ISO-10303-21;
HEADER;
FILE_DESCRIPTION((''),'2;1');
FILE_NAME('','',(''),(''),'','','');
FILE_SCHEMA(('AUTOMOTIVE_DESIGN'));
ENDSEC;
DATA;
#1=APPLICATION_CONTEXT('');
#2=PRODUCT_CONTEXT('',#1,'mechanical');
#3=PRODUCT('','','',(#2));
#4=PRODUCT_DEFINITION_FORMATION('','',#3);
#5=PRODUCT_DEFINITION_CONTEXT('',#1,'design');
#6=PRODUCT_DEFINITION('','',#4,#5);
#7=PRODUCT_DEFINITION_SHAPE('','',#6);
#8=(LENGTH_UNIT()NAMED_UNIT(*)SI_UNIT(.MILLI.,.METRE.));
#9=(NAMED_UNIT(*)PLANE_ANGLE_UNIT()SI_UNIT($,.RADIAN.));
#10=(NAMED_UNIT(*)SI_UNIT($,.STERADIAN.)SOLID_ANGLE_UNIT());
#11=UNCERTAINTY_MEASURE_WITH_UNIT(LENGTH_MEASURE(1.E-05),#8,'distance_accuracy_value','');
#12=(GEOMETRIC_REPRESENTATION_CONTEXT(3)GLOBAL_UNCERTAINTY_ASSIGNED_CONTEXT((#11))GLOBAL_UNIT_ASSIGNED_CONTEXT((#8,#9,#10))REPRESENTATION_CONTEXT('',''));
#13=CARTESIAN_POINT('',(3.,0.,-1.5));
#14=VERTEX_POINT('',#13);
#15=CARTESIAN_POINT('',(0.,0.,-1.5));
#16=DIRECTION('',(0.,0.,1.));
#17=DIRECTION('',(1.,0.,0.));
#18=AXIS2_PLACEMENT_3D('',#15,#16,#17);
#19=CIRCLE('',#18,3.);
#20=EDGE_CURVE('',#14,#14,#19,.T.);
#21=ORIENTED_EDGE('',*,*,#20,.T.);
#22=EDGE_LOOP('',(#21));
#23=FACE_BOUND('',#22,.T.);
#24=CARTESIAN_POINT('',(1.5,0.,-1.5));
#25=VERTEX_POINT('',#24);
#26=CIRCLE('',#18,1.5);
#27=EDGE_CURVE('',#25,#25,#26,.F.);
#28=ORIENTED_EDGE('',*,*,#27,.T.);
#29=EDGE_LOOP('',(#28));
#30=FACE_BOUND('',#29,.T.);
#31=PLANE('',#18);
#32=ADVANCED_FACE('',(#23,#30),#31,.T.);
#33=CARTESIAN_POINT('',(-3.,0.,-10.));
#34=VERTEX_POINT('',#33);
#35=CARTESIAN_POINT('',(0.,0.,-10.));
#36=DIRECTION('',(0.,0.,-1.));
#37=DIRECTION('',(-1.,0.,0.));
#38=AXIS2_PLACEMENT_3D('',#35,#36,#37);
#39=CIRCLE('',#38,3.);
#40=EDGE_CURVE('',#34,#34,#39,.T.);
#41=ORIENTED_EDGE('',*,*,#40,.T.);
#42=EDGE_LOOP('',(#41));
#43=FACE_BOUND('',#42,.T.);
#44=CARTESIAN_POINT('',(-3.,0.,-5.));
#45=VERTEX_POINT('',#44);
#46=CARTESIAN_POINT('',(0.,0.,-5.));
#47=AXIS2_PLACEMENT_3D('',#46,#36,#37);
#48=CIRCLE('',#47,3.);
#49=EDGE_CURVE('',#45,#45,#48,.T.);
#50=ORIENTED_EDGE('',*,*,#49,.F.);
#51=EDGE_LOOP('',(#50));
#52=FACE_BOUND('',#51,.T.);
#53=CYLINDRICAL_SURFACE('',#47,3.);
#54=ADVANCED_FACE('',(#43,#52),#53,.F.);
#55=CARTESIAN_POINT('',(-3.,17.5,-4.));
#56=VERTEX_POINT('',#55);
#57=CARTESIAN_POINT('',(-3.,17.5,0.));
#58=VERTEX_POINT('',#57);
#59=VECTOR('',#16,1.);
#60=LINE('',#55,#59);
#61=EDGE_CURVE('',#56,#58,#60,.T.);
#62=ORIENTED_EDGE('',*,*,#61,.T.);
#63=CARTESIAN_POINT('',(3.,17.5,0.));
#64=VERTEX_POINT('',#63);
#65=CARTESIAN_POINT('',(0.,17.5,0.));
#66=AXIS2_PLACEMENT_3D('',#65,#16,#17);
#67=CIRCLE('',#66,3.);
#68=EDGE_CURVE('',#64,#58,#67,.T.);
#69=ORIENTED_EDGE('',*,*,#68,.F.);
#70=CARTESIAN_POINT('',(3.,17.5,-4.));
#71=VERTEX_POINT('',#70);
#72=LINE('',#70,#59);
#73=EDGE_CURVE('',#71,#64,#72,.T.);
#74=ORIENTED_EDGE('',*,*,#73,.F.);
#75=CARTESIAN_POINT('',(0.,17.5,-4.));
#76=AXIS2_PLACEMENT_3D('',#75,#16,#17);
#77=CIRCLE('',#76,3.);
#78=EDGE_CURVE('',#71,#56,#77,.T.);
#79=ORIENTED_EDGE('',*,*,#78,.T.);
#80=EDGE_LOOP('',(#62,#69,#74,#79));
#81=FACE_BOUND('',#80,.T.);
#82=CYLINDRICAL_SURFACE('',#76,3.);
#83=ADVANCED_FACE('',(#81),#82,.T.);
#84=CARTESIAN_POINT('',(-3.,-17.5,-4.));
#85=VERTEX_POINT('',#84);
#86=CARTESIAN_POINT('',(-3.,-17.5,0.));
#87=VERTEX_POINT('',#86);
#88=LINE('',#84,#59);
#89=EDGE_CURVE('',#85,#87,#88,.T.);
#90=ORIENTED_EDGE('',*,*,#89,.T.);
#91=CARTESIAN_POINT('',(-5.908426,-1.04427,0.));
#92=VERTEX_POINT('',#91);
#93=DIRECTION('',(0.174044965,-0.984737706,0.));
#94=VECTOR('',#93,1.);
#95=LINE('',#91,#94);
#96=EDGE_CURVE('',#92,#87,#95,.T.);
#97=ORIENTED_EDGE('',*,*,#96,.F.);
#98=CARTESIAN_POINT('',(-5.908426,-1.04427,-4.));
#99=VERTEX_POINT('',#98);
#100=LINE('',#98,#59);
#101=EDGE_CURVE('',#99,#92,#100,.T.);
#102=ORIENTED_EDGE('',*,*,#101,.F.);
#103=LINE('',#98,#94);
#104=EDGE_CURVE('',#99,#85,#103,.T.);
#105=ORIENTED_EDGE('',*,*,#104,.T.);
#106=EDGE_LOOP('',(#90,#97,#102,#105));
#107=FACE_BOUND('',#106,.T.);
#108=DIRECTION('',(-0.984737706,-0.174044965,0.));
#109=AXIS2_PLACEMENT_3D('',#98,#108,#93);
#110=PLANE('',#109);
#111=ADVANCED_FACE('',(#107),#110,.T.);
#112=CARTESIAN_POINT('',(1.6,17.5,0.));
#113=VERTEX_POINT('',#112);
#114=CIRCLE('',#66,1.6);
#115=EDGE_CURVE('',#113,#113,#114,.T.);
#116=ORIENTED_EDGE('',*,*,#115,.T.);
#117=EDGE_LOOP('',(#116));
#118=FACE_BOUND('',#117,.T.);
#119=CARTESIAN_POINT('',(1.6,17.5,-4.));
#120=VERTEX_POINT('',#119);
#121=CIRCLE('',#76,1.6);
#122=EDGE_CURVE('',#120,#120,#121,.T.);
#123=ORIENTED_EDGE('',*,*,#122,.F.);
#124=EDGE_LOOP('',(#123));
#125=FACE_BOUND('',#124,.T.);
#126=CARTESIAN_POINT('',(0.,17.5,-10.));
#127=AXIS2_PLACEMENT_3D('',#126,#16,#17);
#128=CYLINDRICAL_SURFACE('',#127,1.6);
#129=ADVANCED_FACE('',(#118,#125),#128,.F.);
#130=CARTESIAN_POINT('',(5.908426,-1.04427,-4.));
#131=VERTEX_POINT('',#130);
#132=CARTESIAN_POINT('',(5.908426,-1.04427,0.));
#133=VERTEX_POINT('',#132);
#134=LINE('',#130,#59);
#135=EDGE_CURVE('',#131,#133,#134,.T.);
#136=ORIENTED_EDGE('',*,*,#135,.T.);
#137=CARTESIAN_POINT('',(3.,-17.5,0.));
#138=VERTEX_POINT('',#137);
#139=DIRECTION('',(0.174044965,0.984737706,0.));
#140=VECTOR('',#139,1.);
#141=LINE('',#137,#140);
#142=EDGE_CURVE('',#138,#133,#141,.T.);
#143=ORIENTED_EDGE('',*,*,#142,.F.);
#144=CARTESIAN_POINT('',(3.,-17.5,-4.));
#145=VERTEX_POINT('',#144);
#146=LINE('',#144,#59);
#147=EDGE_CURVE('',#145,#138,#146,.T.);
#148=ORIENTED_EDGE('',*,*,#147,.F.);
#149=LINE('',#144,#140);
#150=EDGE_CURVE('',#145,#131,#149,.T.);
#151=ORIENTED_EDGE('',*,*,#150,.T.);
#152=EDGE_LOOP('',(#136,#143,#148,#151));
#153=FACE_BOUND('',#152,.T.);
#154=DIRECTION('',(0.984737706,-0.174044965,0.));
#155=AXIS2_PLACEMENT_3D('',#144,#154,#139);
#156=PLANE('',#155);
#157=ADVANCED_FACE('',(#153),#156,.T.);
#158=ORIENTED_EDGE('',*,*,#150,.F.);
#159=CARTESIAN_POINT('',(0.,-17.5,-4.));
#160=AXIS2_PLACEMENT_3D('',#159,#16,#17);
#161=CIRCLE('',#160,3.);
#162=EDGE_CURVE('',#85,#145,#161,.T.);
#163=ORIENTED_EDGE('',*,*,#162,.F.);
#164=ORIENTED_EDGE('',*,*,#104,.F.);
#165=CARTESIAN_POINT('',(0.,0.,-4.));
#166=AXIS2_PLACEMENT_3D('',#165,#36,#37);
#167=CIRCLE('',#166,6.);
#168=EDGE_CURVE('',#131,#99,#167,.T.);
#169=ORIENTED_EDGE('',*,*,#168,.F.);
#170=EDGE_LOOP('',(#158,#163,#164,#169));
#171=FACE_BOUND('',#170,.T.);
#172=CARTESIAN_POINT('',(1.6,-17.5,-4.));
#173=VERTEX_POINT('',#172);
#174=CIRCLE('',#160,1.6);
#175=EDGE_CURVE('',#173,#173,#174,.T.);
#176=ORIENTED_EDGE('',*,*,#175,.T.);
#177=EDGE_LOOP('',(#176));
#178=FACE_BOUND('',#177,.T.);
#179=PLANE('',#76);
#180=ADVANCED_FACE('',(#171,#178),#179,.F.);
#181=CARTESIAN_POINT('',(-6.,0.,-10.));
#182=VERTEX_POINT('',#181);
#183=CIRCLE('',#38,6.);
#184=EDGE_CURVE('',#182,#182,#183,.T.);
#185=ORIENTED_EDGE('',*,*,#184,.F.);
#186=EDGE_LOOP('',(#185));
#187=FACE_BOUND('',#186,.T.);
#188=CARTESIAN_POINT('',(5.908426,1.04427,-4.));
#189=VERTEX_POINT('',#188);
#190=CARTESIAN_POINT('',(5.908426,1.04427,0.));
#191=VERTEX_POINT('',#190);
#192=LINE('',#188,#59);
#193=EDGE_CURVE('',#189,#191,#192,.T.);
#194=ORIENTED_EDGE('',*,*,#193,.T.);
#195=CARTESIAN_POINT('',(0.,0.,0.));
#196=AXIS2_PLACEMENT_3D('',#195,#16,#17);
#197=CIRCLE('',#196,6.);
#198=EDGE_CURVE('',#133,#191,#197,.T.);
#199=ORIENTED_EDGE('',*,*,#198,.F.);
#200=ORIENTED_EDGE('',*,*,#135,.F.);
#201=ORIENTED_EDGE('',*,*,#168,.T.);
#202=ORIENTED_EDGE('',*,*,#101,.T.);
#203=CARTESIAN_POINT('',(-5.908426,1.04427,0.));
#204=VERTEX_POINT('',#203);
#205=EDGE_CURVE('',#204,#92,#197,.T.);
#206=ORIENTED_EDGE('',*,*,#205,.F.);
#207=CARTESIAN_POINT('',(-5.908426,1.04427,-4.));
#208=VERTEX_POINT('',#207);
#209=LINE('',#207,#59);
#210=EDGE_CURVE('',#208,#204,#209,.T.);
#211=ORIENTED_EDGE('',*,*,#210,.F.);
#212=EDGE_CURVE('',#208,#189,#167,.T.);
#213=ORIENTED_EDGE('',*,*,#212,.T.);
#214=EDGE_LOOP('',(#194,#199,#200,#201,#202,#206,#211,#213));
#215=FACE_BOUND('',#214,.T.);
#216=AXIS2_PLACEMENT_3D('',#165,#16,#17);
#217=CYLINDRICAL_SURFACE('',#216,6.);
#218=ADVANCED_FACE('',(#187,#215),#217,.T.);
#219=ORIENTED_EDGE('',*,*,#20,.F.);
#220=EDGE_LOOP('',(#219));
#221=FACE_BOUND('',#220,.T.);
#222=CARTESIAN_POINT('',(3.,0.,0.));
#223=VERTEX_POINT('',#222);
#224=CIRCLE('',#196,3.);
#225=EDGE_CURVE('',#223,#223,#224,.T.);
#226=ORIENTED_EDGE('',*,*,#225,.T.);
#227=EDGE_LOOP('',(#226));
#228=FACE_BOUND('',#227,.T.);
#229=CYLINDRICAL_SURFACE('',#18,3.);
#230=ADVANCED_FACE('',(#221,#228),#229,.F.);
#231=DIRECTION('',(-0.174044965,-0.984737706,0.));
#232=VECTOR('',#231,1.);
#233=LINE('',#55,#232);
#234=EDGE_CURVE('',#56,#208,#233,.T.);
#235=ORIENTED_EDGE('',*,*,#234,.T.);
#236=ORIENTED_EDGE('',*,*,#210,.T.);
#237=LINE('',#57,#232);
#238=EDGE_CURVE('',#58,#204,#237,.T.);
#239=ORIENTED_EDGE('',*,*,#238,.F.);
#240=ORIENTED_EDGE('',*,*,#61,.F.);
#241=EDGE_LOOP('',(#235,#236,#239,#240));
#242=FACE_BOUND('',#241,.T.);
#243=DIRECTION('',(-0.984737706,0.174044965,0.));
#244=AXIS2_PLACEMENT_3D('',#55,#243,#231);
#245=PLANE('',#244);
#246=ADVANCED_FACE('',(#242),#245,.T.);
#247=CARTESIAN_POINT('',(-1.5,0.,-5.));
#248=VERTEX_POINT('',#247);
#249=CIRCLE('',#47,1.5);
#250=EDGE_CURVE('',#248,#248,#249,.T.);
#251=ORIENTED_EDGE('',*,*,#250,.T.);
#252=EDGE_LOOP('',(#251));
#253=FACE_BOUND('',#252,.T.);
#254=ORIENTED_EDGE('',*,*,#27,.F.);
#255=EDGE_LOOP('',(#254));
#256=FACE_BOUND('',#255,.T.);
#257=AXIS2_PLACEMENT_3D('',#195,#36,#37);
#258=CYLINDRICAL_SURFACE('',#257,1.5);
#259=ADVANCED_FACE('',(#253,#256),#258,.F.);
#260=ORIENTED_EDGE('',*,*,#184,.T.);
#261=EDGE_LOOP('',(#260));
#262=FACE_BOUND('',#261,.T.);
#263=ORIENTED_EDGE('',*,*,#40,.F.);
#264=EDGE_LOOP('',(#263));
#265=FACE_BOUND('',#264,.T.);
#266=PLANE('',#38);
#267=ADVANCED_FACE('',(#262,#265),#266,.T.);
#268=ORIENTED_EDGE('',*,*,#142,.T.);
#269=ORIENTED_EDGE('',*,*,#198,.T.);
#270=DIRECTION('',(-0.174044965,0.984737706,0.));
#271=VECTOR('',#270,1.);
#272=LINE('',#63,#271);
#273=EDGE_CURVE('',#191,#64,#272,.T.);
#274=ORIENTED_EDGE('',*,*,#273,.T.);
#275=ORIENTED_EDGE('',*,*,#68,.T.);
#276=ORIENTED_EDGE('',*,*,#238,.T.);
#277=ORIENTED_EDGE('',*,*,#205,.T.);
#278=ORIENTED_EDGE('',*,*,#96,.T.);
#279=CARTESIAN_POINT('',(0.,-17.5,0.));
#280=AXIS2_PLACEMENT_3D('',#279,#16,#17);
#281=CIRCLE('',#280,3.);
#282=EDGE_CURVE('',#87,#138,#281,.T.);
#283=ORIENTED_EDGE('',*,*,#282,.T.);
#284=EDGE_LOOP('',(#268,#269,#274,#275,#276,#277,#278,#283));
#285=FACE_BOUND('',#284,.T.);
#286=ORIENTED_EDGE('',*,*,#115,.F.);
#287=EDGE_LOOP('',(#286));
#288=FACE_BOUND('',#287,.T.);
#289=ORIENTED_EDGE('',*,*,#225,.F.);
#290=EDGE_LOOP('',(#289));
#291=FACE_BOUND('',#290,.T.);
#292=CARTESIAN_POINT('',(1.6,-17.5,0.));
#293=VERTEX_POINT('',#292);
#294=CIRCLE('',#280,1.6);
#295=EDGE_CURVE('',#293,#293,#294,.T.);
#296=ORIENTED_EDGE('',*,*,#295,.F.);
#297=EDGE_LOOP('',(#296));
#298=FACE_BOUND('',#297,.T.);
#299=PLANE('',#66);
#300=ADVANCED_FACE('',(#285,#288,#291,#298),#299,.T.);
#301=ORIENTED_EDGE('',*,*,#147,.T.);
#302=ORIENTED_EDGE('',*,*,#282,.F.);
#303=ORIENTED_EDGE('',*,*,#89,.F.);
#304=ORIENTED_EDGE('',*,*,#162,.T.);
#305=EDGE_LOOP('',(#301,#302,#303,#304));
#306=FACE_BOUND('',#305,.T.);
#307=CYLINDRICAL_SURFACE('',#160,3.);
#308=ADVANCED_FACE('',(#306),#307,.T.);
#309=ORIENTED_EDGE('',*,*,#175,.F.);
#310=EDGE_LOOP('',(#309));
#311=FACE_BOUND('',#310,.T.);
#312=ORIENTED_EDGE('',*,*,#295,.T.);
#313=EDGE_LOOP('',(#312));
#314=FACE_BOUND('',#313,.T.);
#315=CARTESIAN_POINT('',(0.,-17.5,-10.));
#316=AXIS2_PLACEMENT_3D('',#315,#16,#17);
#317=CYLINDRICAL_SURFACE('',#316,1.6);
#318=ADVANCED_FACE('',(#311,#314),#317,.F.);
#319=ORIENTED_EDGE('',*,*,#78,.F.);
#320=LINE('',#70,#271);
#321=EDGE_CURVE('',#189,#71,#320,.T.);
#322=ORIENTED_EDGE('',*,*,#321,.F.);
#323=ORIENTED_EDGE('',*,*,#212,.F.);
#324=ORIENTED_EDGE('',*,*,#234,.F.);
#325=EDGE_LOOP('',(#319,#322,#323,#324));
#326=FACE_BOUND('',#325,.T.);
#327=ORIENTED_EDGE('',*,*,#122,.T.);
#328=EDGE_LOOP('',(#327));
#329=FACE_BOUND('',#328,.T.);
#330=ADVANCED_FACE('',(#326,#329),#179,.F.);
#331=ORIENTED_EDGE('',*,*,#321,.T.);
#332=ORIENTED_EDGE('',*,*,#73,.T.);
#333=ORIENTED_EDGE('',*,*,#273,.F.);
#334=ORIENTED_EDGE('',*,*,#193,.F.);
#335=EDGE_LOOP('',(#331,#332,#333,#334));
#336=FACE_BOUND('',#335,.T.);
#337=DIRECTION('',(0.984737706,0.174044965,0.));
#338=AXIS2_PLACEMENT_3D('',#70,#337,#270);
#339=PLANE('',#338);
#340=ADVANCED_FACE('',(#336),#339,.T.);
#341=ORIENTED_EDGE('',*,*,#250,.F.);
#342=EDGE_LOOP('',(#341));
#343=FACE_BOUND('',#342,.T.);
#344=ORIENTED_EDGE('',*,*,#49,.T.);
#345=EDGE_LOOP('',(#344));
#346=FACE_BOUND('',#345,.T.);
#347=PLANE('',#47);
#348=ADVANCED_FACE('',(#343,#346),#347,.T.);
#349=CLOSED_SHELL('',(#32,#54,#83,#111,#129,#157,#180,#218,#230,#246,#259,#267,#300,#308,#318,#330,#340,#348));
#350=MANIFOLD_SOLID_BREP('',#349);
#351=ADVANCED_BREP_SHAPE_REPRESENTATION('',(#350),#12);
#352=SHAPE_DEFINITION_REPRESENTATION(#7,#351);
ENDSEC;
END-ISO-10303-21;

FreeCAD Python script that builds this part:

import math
import FreeCAD as App
import Part
import Sketcher
from FreeCAD import Vector

doc = App.newDocument("Part")
body = doc.addObject("PartDesign::Body", "Body")

# Sketch on XY plane
sketch1 = doc.addObject("Sketcher::SketchObject", "Sketch")
body.addObject(sketch1)
sketch1.AttachmentSupport = (doc.XY_Plane, [""])
sketch1.MapMode = "FlatFace"
sketch1.addGeometry(Part.LineSegment(Vector(5.908426, 1.04427, 0), Vector(3, 17.5, 0)), False)
sketch1.addGeometry(Part.ArcOfCircle(Part.Circle(Vector(0, 17.5, 0), Vector(0, 0, 1), 3), math.radians(0), math.radians(180)), False)
sketch1.addGeometry(Part.LineSegment(Vector(-3, 17.5, 0), Vector(-5.908426, 1.04427, 0)), False)
sketch1.addGeometry(Part.ArcOfCircle(Part.Circle(Vector(0, 0, 0), Vector(0, 0, 1), 6), math.radians(169.976914), math.radians(190.023086)), False)
sketch1.addGeometry(Part.LineSegment(Vector(-5.908426, -1.04427, 0), Vector(-3, -17.5, 0)), False)
sketch1.addGeometry(Part.ArcOfCircle(Part.Circle(Vector(0, -17.5, 0), Vector(0, 0, 1), 3), math.radians(180), math.radians(360)), False)
sketch1.addGeometry(Part.LineSegment(Vector(3, -17.5, 0), Vector(5.908426, -1.04427, 0)), False)
sketch1.addGeometry(Part.ArcOfCircle(Part.Circle(Vector(0, 0, 0), Vector(0, 0, 1), 6), math.radians(-10.023086), math.radians(10.023086)), False)
sketch1.addConstraint(Sketcher.Constraint("Coincident", 0, 2, 1, 1))
sketch1.addConstraint(Sketcher.Constraint("Coincident", 1, 2, 2, 1))
sketch1.addConstraint(Sketcher.Constraint("Tangent", 2, 2, 3, 1))
sketch1.addConstraint(Sketcher.Constraint("Tangent", 3, 2, 4, 1))
sketch1.addConstraint(Sketcher.Constraint("Coincident", 4, 2, 5, 1))
sketch1.addConstraint(Sketcher.Constraint("Coincident", 5, 2, 6, 1))
sketch1.addConstraint(Sketcher.Constraint("Tangent", 6, 2, 7, 1))
sketch1.addConstraint(Sketcher.Constraint("Tangent", 7, 2, 0, 1))
sketch1.addConstraint(Sketcher.Constraint("Coincident", 3, 3, -1, 1))
sketch1.addConstraint(Sketcher.Constraint("Coincident", 7, 3, -1, 1))
sketch1.addConstraint(Sketcher.Constraint("Equal", 1, 5))
sketch1.addConstraint(Sketcher.Constraint("Equal", 3, 7))
sketch1.addConstraint(Sketcher.Constraint("Symmetric", 1, 3, 5, 3, -1, 1))
sketch1.addConstraint(Sketcher.Constraint("Symmetric", 0, 2, 1, 2, -2))
sketch1.addConstraint(Sketcher.Constraint("Parallel", 0, 4))
sketch1.addConstraint(Sketcher.Constraint("Parallel", 2, 6))
sketch1.addConstraint(Sketcher.Constraint("Horizontal", 1, 3, 0, 2))
sketch1.addConstraint(Sketcher.Constraint("Radius", 1, 3.0))
sketch1.addConstraint(Sketcher.Constraint("Radius", 3, 6.0))
sketch1.addConstraint(Sketcher.Constraint("DistanceY", 5, 3, 1, 3, 35.0))
pad1 = doc.addObject("PartDesign::Pad", "Pad")
body.addObject(pad1)
pad1.Profile = sketch1
pad1.Length = 4
pad1.Reversed = True

# Sketch on XY plane
sketch2 = doc.addObject("Sketcher::SketchObject", "Sketch001")
body.addObject(sketch2)
sketch2.AttachmentSupport = (doc.XY_Plane, [""])
sketch2.MapMode = "FlatFace"
sketch2.AttachmentOffset = App.Placement(Vector(0, 0, -4), App.Rotation())
sketch2.addGeometry(Part.Circle(Vector(0, 0, 0), Vector(0, 0, 1), 6), False)
sketch2.addConstraint(Sketcher.Constraint("Coincident", 0, 3, -1, 1))
sketch2.addConstraint(Sketcher.Constraint("Diameter", 0, 12.0))
pad2 = doc.addObject("PartDesign::Pad", "Pad001")
body.addObject(pad2)
pad2.Profile = sketch2
pad2.Length = 6
pad2.Reversed = True

# Sketch on XY plane
sketch3 = doc.addObject("Sketcher::SketchObject", "Sketch002")
body.addObject(sketch3)
sketch3.AttachmentSupport = (doc.XY_Plane, [""])
sketch3.MapMode = "FlatFace"
sketch3.AttachmentOffset = App.Placement(Vector(0, 0, -10), App.Rotation())
sketch3.addGeometry(Part.Circle(Vector(0, 0, 0), Vector(0, 0, 1), 3), False)
sketch3.addConstraint(Sketcher.Constraint("Coincident", 0, 3, -1, 1))
sketch3.addConstraint(Sketcher.Constraint("Diameter", 0, 6.0))
pocket1 = doc.addObject("PartDesign::Pocket", "Pocket")
body.addObject(pocket1)
pocket1.Profile = sketch3
pocket1.Length = 5
pocket1.Reversed = True

# Sketch on XY plane
sketch4 = doc.addObject("Sketcher::SketchObject", "Sketch003")
body.addObject(sketch4)
sketch4.AttachmentSupport = (doc.XY_Plane, [""])
sketch4.MapMode = "FlatFace"
sketch4.AttachmentOffset = App.Placement(Vector(0, 0, -5), App.Rotation())
sketch4.addGeometry(Part.Circle(Vector(0, 0, 0), Vector(0, 0, 1), 1.5), False)
sketch4.addConstraint(Sketcher.Constraint("Coincident", 0, 3, -1, 1))
sketch4.addConstraint(Sketcher.Constraint("Diameter", 0, 3.0))
pocket2 = doc.addObject("PartDesign::Pocket", "Pocket001")
body.addObject(pocket2)
pocket2.Profile = sketch4
pocket2.Type = "ThroughAll"
pocket2.Reversed = True

# Sketch on XY plane
sketch5 = doc.addObject("Sketcher::SketchObject", "Sketch004")
body.addObject(sketch5)
sketch5.AttachmentSupport = (doc.XY_Plane, [""])
sketch5.MapMode = "FlatFace"
sketch5.addGeometry(Part.Circle(Vector(0, 17.5, 0), Vector(0, 0, 1), 1.6), False)
sketch5.addGeometry(Part.Circle(Vector(0, -17.5, 0), Vector(0, 0, 1), 1.6), False)
sketch5.addConstraint(Sketcher.Constraint("Equal", 0, 1))
sketch5.addConstraint(Sketcher.Constraint("Symmetric", 0, 3, 1, 3, -1, 1))
sketch5.addConstraint(Sketcher.Constraint("PointOnObject", 0, 3, -2))
sketch5.addConstraint(Sketcher.Constraint("Diameter", 0, 3.2))
sketch5.addConstraint(Sketcher.Constraint("DistanceY", 1, 3, 0, 3, 35.0))
pocket3 = doc.addObject("PartDesign::Pocket", "Pocket002")
body.addObject(pocket3)
pocket3.Profile = sketch5
pocket3.Type = "ThroughAll"

# Sketch on XY plane
sketch6 = doc.addObject("Sketcher::SketchObject", "Sketch005")
body.addObject(sketch6)
sketch6.AttachmentSupport = (doc.XY_Plane, [""])
sketch6.MapMode = "FlatFace"
sketch6.addGeometry(Part.Circle(Vector(0, 0, 0), Vector(0, 0, 1), 3), False)
sketch6.addConstraint(Sketcher.Constraint("Coincident", 0, 3, -1, 1))
sketch6.addConstraint(Sketcher.Constraint("Diameter", 0, 6.0))
pocket4 = doc.addObject("PartDesign::Pocket", "Pocket003")
body.addObject(pocket4)
pocket4.Profile = sketch6
pocket4.Length = 1.5

doc.recompute()
